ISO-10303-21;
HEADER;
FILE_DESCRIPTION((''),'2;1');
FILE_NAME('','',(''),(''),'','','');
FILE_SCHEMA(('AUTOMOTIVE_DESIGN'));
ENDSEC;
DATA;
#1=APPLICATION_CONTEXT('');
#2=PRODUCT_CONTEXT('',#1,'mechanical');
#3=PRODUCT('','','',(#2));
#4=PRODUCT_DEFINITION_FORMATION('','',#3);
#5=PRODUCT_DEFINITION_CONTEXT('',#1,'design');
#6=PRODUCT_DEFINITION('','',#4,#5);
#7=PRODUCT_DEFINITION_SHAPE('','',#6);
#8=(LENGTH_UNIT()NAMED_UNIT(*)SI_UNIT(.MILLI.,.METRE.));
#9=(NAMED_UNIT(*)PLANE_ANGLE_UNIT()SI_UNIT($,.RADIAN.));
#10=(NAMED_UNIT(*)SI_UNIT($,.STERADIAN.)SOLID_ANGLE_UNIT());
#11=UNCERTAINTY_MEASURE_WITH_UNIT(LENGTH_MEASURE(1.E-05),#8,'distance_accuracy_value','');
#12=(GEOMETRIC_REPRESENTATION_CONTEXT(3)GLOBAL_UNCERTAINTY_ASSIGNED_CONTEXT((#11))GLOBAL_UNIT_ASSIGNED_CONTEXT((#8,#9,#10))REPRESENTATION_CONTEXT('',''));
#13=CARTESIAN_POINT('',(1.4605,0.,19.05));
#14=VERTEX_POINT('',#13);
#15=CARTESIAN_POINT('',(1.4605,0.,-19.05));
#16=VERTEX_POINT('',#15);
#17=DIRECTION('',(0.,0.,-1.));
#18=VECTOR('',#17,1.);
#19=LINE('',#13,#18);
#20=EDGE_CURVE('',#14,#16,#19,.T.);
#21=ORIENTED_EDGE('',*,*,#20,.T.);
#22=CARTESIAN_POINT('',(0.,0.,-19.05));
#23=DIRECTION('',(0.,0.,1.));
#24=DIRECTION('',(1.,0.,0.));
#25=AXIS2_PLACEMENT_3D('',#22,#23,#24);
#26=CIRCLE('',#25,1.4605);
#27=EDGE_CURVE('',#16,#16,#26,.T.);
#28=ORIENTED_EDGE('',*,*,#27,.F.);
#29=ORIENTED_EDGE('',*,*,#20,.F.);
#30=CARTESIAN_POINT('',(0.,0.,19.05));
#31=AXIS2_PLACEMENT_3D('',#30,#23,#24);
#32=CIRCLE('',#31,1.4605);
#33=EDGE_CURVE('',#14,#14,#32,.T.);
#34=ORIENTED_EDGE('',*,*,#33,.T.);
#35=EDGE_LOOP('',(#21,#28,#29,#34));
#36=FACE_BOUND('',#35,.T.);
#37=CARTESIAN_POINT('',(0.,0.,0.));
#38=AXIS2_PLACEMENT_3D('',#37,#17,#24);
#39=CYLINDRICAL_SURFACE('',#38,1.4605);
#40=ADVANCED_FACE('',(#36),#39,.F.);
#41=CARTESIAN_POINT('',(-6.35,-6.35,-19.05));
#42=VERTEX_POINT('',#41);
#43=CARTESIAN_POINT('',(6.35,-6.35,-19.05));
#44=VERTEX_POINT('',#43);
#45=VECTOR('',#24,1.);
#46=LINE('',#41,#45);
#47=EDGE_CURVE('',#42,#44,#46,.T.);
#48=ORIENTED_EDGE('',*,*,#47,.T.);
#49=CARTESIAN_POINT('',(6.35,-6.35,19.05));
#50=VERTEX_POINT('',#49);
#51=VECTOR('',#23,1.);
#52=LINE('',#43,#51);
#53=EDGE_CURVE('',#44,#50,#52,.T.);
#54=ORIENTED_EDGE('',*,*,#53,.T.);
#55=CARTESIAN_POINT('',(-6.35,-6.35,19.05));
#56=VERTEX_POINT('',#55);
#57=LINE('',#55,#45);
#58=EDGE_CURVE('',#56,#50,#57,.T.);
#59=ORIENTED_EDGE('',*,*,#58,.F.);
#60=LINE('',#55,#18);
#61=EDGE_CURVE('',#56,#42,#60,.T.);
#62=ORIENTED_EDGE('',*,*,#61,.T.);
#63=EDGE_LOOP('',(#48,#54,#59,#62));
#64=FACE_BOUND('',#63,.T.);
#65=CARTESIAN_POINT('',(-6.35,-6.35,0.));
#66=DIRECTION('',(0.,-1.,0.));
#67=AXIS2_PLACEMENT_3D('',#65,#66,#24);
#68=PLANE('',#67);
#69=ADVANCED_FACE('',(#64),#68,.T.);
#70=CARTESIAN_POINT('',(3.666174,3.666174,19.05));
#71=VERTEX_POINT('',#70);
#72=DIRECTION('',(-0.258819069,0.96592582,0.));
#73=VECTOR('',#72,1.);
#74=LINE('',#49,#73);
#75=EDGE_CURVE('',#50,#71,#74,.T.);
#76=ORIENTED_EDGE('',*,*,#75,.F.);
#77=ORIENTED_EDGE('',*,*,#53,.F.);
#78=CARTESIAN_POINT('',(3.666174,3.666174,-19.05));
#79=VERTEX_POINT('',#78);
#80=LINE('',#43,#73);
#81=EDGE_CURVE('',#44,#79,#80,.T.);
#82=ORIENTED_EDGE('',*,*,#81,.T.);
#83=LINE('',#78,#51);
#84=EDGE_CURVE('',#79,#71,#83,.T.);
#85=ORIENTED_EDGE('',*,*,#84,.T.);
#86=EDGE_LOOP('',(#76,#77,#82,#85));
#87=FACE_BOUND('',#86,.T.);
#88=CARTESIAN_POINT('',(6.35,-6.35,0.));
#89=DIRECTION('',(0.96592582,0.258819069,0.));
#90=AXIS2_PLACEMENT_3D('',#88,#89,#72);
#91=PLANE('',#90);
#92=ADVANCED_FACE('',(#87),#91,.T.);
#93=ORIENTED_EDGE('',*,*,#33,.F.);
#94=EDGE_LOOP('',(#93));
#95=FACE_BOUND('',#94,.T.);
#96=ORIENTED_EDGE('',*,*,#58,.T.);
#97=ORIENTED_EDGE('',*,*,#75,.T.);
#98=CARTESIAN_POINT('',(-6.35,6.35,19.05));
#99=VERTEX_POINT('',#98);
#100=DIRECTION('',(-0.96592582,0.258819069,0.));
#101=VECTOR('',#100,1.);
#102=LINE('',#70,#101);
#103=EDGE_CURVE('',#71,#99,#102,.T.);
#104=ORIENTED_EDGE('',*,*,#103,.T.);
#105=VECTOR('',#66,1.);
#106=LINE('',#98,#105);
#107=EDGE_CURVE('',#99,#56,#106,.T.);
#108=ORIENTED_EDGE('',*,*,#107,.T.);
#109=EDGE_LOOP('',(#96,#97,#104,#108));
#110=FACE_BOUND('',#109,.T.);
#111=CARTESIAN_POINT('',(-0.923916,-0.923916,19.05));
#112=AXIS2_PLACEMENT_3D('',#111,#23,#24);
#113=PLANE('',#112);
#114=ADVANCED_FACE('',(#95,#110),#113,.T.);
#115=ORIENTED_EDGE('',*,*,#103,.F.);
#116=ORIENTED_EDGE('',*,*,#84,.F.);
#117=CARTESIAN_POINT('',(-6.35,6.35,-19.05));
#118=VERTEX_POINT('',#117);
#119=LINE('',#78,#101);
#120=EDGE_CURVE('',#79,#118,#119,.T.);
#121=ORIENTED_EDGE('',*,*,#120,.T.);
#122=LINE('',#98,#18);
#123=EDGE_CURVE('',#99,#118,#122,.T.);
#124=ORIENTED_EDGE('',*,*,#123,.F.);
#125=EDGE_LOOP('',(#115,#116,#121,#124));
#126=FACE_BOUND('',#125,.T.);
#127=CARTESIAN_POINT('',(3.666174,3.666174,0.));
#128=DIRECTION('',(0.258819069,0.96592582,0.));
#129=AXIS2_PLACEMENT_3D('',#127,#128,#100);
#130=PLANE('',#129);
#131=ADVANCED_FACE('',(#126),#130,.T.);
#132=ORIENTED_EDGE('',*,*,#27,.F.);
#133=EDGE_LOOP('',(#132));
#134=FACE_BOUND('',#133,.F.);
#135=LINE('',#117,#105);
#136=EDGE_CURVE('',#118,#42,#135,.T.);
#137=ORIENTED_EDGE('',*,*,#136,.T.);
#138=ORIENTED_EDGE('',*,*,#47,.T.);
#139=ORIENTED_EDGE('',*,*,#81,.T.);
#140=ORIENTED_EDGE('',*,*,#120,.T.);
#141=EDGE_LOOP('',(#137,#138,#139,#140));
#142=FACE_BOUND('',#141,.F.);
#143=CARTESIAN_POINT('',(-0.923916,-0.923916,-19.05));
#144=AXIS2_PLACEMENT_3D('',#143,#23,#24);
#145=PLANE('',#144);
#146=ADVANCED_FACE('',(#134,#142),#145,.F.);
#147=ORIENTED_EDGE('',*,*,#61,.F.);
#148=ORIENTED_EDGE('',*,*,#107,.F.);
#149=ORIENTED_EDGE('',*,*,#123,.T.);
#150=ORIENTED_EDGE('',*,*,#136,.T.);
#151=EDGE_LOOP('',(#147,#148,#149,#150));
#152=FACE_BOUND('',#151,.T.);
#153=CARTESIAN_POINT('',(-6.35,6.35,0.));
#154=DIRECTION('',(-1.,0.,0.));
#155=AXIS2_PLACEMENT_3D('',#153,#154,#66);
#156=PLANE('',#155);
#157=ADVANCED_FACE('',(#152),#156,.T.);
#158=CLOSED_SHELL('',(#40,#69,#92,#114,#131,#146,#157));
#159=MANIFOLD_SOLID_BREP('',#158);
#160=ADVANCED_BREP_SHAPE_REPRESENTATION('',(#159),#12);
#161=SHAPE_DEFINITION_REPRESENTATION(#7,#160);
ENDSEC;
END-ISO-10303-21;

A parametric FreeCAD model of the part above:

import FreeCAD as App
import Part
import Sketcher
Q = App.Units.Quantity


def add_polygon(sketch, points):
    """Adds a closed chain of lines whose ends are joined by coincident constraints."""
    first, n = sketch.GeometryCount, len(points)
    for a, b in zip(points, points[1:] + points[:1]):
        sketch.addGeometry(Part.LineSegment(App.Vector(*a, 0), App.Vector(*b, 0)), False)
    for i in range(n):
        sketch.addConstraint(Sketcher.Constraint("Coincident", first + i, 2, first + (i + 1) % n, 1))

doc = App.newDocument("Part")
body = doc.addObject("PartDesign::Body", "Body")

sketch1 = doc.addObject("Sketcher::SketchObject", "Sketch")
body.addObject(sketch1)
sketch1.AttachmentSupport = (doc.XY_Plane, [""])
sketch1.MapMode = "FlatFace"
add_polygon(sketch1, [(-6.3, -6.3), (6.3, -6.3), (3.7, 3.7), (-6.3, 6.3)])
sketch1.addGeometry(Part.Circle(App.Vector(0, 0, 0), App.Vector(0, 0, 1), 1.5), False)
sketch1.addConstraint([
    Sketcher.Constraint("Horizontal", 0),
    Sketcher.Constraint("Vertical", 3),
    Sketcher.Constraint("Coincident", 4, 3, -1, 1),
    Sketcher.Constraint("Symmetric", 0, 2, 2, 2, -1, 1),
    Sketcher.Constraint("Equal", 0, 3),
    Sketcher.Constraint("Equal", 1, 2),
    Sketcher.Constraint("Diameter", 4, Q("0.115 in")),
    Sketcher.Constraint("DistanceX", 0, 1, 0, 2, Q("0.5 in")),
    Sketcher.Constraint("Angle", 1, Q("105.000001 deg")),
])
pad1 = doc.addObject("PartDesign::Pad", "Pad")
body.addObject(pad1)
pad1.Profile = sketch1
pad1.Length = Q("1.5 in")
pad1.Midplane = True

doc.recompute()
